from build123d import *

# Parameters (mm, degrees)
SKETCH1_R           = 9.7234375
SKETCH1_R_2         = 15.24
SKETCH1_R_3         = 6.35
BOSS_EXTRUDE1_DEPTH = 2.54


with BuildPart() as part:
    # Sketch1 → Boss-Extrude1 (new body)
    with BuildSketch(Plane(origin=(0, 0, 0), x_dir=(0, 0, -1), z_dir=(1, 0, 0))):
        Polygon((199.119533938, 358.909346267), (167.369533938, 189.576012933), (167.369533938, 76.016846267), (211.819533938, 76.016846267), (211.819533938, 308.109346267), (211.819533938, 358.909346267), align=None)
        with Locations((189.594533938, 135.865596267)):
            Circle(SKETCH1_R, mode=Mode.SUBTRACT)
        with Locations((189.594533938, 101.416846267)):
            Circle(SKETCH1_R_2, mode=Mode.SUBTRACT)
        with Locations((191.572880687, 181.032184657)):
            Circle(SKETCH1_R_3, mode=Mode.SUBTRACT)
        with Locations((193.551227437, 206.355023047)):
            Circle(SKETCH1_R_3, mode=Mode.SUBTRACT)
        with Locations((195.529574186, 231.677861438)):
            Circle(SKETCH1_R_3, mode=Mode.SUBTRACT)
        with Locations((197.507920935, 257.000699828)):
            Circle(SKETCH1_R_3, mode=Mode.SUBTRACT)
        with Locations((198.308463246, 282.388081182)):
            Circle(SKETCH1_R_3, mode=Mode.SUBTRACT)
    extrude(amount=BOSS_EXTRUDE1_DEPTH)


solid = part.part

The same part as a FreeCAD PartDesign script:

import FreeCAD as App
import Part
import Sketcher
from FreeCAD import Vector
Q = App.Units.Quantity


def add_polygon(sketch, points):
    """Adds a closed chain of lines whose ends are joined by coincident constraints."""
    first, n = sketch.GeometryCount, len(points)
    for a, b in zip(points, points[1:] + points[:1]):
        sketch.addGeometry(Part.LineSegment(App.Vector(*a, 0), App.Vector(*b, 0)), False)
    for i in range(n):
        sketch.addConstraint(Sketcher.Constraint("Coincident", first + i, 2, first + (i + 1) % n, 1))

doc = App.newDocument("Part")
body = doc.addObject("PartDesign::Body", "Body")

# Sketch on YZ plane
sketch1 = body.newObject("Sketcher::SketchObject", "Sketch")
sketch1.AttachmentSupport = (doc.getObject("YZ_Plane"), [""])
sketch1.MapMode = "FlatFace"
add_polygon(sketch1, [(359, -199), (190, -167), (76, -167), (76, -212), (359, -212)])  # lines 0-4
sketch1.addGeometry(Part.Circle(Vector(101, -190, 0), Vector(0, 0, 1), 15), False)  # 5
sketch1.addGeometry(Part.Circle(Vector(136, -190, 0), Vector(0, 0, 1), 10), False)  # 6
sketch1.addGeometry(Part.Circle(Vector(181, -192, 0), Vector(0, 0, 1), 6), False)  # 7
sketch1.addGeometry(Part.Circle(Vector(206, -194, 0), Vector(0, 0, 1), 6), False)  # 8
sketch1.addGeometry(Part.Circle(Vector(232, -196, 0), Vector(0, 0, 1), 6), False)  # 9
sketch1.addGeometry(Part.Circle(Vector(257, -198, 0), Vector(0, 0, 1), 6), False)  # 10
sketch1.addGeometry(Part.Circle(Vector(282, -198, 0), Vector(0, 0, 1), 6), False)  # 11
sketch1.addConstraint(Sketcher.Constraint("Horizontal", 1))
sketch1.addConstraint(Sketcher.Constraint("Vertical", 2))
sketch1.addConstraint(Sketcher.Constraint("Horizontal", 3))
sketch1.addConstraint(Sketcher.Constraint("Vertical", 4))
sketch1.addConstraint(Sketcher.Constraint("Equal", 7, 8))
sketch1.addConstraint(Sketcher.Constraint("Equal", 8, 9))
sketch1.addConstraint(Sketcher.Constraint("Equal", 9, 10))
sketch1.addConstraint(Sketcher.Constraint("Equal", 10, 11))
sketch1.addConstraint(Sketcher.Constraint("Horizontal", 5, 3, 6, 3))
sketch1.addConstraint(Sketcher.Constraint("Diameter", 5, Q("1.2 in")))
sketch1.addConstraint(Sketcher.Constraint("Diameter", 7, Q("0.5 in")))
sketch1.addConstraint(Sketcher.Constraint("Diameter", 6, Q("0.765625 in")))
sketch1.addConstraint(Sketcher.Constraint("DistanceY", 4, 1, 4, 2, Q("0.5 in")))
sketch1.addConstraint(Sketcher.Constraint("DistanceX", 1, 2, 5, 3, Q("1 in")))
sketch1.addConstraint(Sketcher.Constraint("DistanceY", 2, 2, 2, 1, Q("1.75 in")))
sketch1.addConstraint(Sketcher.Constraint("DistanceX", 3, 1, 3, 2, Q("11.1375 in")))
sketch1.addConstraint(Sketcher.Constraint("DistanceY", 6, 3, 0, 2, Q("0.875 in")))
sketch1.addConstraint(Sketcher.Constraint("DistanceX", -1, 1, 10, 3, 257.0007))
sketch1.addConstraint(Sketcher.Constraint("DistanceX", 1, 2, 1, 1, 113.559167))
sketch1.addConstraint(Sketcher.Constraint("DistanceY", 7, 3, -1, 1, 191.572881))
sketch1.addConstraint(Sketcher.Constraint("DistanceX", -1, 1, 9, 3, 231.677861))
sketch1.addConstraint(Sketcher.Constraint("DistanceY", 10, 3, -1, 1, 197.507921))
sketch1.addConstraint(Sketcher.Constraint("DistanceX", -1, 1, 11, 3, 282.388081))
sketch1.addConstraint(Sketcher.Constraint("DistanceX", 5, 3, 6, 3, 34.44875))
sketch1.addConstraint(Sketcher.Constraint("DistanceX", 6, 3, 7, 3, 45.166588))
sketch1.addConstraint(Sketcher.Constraint("DistanceX", 7, 3, 8, 3, 25.322838))
sketch1.addConstraint(Sketcher.Constraint("DistanceX", 8, 3, 9, 3, 25.322838))
sketch1.addConstraint(Sketcher.Constraint("DistanceY", 9, 3, 6, 3, 5.93504))
sketch1.addConstraint(Sketcher.Constraint("DistanceY", 11, 3, 9, 3, 2.778889))
sketch1.addConstraint(Sketcher.Constraint("DistanceY", 5, 3, -1, 1, 189.594534))
sketch1.addConstraint(Sketcher.Constraint("DistanceY", 8, 3, -1, 1, 193.551227))
pad1 = body.newObject("PartDesign::Pad", "Pad")
pad1.Profile = sketch1
pad1.Length = Q("0.1 in")

doc.recompute()
